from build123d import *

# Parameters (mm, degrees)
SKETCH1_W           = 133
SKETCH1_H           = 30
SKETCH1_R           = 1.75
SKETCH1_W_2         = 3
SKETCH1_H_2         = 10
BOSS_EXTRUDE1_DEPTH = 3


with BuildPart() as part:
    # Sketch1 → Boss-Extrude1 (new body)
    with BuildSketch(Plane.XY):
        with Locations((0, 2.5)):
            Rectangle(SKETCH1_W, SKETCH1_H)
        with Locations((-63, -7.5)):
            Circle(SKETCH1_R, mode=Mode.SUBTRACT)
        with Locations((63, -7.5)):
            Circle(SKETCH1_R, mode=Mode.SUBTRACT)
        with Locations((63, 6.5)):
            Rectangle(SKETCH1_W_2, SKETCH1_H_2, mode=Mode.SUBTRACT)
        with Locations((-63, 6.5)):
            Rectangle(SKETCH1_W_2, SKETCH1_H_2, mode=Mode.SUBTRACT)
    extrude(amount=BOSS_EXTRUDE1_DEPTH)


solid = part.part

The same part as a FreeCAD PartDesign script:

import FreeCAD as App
import Part
import Sketcher
Q = App.Units.Quantity


def add_polygon(sketch, points):
    """Adds a closed chain of lines whose ends are joined by coincident constraints."""
    first, n = sketch.GeometryCount, len(points)
    for a, b in zip(points, points[1:] + points[:1]):
        sketch.addGeometry(Part.LineSegment(App.Vector(*a, 0), App.Vector(*b, 0)), False)
    for i in range(n):
        sketch.addConstraint(Sketcher.Constraint("Coincident", first + i, 2, first + (i + 1) % n, 1))

doc = App.newDocument("Part")
body = doc.addObject("PartDesign::Body", "Body")

# Sketch on XY plane
sketch1 = body.newObject("Sketcher::SketchObject", "Sketch")
sketch1.AttachmentSupport = (doc.getObject("XY_Plane"), [""])
sketch1.MapMode = "FlatFace"
add_polygon(sketch1, [(-66.5, 17.5), (-66.5, -12.5), (66.5, -12.5), (66.5, 17.5)])  # lines 0-3
sketch1.addGeometry(Part.Circle(App.Vector(-63, -7.5, 0), App.Vector(0, 0, 1), 1.75), False)  # 4
sketch1.addGeometry(Part.Circle(App.Vector(63, -7.5, 0), App.Vector(0, 0, 1), 1.75), False)  # 5
add_polygon(sketch1, [(-61.5, 1.5), (-64.5, 1.5), (-64.5, 11.5), (-61.5, 11.5)])  # lines 6-9
add_polygon(sketch1, [(64.5, 1.5), (61.5, 1.5), (61.5, 11.5), (64.5, 11.5)])  # lines 10-13
sketch1.addConstraint(Sketcher.Constraint("Vertical", 0))
sketch1.addConstraint(Sketcher.Constraint("Horizontal", 1))
sketch1.addConstraint(Sketcher.Constraint("Vertical", 2))
sketch1.addConstraint(Sketcher.Constraint("Horizontal", 3))
sketch1.addConstraint(Sketcher.Constraint("Horizontal", 6))
sketch1.addConstraint(Sketcher.Constraint("Vertical", 7))
sketch1.addConstraint(Sketcher.Constraint("Horizontal", 8))
sketch1.addConstraint(Sketcher.Constraint("Vertical", 9))
sketch1.addConstraint(Sketcher.Constraint("Horizontal", 10))
sketch1.addConstraint(Sketcher.Constraint("Vertical", 11))
sketch1.addConstraint(Sketcher.Constraint("Horizontal", 12))
sketch1.addConstraint(Sketcher.Constraint("Vertical", 13))
sketch1.addConstraint(Sketcher.Constraint("Equal", 4, 5))
sketch1.addConstraint(Sketcher.Constraint("Symmetric", 4, 3, 5, 3, -2))
sketch1.addConstraint(Sketcher.Constraint("Symmetric", 9, 2, 10, 2, -2))
sketch1.addConstraint(Sketcher.Constraint("Symmetric", 7, 2, 12, 2, -2))
sketch1.addConstraint(Sketcher.Constraint("Diameter", 4, Q("3.5 mm")))
sketch1.addConstraint(Sketcher.Constraint("DistanceX", 1, 1, 1, 2, Q("133 mm")))
sketch1.addConstraint(Sketcher.Constraint("DistanceX", 6, 2, 6, 1, Q("3 mm")))
sketch1.addConstraint(Sketcher.Constraint("DistanceY", 0, 2, 0, 1, Q("30 mm")))
sketch1.addConstraint(Sketcher.Constraint("DistanceY", 7, 1, 7, 2, Q("10 mm")))
sketch1.addConstraint(Sketcher.Constraint("DistanceX", 4, 3, -1, 1, Q("63 mm")))
sketch1.addConstraint(Sketcher.Constraint("DistanceY", 0, 2, 4, 3, Q("5 mm")))
sketch1.addConstraint(Sketcher.Constraint("DistanceY", 4, 3, 6, 2, Q("9 mm")))
sketch1.addConstraint(Sketcher.Constraint("DistanceX", 0, 2, 6, 2, Q("2 mm")))
sketch1.addConstraint(Sketcher.Constraint("DistanceX", 10, 2, 1, 2, Q("5 mm")))
sketch1.addConstraint(Sketcher.Constraint("DistanceY", 4, 3, -1, 1, Q("7.5 mm")))
pad1 = body.newObject("PartDesign::Pad", "Pad")
pad1.Profile = sketch1
pad1.Length = 3

doc.recompute()
